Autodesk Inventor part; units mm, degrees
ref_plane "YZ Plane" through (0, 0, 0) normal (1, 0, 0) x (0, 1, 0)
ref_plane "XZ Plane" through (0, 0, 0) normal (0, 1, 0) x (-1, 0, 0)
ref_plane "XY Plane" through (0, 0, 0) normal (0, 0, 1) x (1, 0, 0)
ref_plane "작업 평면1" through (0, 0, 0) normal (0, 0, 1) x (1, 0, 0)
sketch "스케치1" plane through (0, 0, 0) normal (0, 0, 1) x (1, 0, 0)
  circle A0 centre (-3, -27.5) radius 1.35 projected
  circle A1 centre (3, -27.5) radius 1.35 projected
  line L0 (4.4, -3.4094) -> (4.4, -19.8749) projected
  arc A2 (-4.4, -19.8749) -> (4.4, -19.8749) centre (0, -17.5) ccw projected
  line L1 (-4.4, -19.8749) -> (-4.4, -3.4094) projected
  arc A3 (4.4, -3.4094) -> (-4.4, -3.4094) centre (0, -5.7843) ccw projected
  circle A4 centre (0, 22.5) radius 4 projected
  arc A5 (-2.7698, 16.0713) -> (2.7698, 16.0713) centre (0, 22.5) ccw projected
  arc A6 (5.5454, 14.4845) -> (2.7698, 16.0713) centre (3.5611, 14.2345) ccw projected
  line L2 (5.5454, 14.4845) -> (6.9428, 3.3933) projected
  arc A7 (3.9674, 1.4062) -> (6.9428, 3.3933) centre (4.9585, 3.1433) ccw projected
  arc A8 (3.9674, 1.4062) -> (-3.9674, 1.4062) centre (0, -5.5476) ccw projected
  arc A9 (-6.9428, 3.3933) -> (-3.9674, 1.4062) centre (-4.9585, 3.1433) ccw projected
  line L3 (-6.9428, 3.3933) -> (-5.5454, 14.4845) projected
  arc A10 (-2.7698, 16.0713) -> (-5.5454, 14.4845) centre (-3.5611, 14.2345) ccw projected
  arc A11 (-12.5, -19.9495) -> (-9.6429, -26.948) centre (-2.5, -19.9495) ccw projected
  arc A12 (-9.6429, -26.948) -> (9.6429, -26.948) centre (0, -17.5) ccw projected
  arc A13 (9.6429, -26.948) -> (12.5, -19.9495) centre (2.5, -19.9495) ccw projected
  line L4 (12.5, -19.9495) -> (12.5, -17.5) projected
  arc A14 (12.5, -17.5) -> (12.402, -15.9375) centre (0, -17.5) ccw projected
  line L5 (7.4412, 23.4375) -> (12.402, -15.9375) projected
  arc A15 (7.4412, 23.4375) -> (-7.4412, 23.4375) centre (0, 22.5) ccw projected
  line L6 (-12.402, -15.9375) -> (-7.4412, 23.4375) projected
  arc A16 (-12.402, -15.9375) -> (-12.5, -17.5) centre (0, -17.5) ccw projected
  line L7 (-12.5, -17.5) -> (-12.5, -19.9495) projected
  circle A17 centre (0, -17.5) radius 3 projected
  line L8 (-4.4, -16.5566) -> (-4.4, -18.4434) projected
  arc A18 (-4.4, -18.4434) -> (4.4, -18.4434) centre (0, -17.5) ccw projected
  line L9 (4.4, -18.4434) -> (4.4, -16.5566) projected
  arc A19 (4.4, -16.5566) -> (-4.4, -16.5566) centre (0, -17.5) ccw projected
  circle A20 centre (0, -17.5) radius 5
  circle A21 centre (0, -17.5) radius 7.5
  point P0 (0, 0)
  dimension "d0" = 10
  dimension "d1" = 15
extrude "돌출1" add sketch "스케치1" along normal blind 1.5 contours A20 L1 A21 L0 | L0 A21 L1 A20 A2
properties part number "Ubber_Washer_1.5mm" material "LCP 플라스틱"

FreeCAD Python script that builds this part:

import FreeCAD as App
import Part
import Sketcher
from FreeCAD import Vector

doc = App.newDocument("Part")
body = doc.addObject("PartDesign::Body", "Body")

sketch1 = body.newObject("Sketcher::SketchObject", "Sketch")
sketch1.AttachmentSupport = (doc.getObject("XY_Plane"), [""])
sketch1.MapMode = "FlatFace"
sketch1.addGeometry([
    Part.Circle(Vector(0, -18, 0), Vector(0, 0, 1), 8),
    Part.Circle(Vector(0, -18, 0), Vector(0, 0, 1), 5),
], False)
sketch1.addConstraint([
    Sketcher.Constraint("Coincident", 1, 3, 0, 3),
    Sketcher.Constraint("PointOnObject", 0, 3, -2),
    Sketcher.Constraint("Diameter", 0, 15.0),
    Sketcher.Constraint("Diameter", 1, 10.0),
    Sketcher.Constraint("DistanceY", 0, 3, -1, 1, 17.5),
])
pad1 = body.newObject("PartDesign::Pad", "Pad")
pad1.Profile = sketch1
pad1.Length = 1.5

doc.recompute()
